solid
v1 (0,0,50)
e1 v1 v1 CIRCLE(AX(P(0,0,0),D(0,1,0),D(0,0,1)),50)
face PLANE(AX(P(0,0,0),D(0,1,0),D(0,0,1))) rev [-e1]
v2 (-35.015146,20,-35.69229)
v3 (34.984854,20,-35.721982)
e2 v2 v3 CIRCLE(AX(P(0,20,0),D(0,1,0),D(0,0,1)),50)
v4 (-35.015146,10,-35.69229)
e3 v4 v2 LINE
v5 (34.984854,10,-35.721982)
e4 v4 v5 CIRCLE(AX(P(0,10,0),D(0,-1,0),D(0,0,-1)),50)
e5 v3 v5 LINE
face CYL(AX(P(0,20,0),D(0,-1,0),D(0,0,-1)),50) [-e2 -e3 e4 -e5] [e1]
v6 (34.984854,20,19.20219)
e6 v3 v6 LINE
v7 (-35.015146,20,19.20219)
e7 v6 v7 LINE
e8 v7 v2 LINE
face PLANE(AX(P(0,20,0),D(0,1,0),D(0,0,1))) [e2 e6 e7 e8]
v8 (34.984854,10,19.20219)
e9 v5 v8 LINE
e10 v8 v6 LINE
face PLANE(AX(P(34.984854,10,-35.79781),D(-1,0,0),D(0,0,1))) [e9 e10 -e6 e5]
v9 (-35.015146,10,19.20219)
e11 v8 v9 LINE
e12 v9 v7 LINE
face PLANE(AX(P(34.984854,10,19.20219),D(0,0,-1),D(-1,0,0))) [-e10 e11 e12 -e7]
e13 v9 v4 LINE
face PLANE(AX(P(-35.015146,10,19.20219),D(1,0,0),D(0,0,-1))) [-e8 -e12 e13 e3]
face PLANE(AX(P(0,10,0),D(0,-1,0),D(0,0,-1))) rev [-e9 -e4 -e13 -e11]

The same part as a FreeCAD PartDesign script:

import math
import FreeCAD as App
import Part
import Sketcher


def add_polygon(sketch, points):
    """Adds a closed chain of lines whose ends are joined by coincident constraints."""
    first, n = sketch.GeometryCount, len(points)
    for a, b in zip(points, points[1:] + points[:1]):
        sketch.addGeometry(Part.LineSegment(App.Vector(*a, 0), App.Vector(*b, 0)), False)
    for i in range(n):
        sketch.addConstraint(Sketcher.Constraint("Coincident", first + i, 2, first + (i + 1) % n, 1))

doc = App.newDocument("Part")
body = doc.addObject("PartDesign::Body", "Body")

sketch1 = doc.addObject("Sketcher::SketchObject", "Sketch")
body.addObject(sketch1)
sketch1.AttachmentSupport = (doc.XZ_Plane, [""])
sketch1.MapMode = "FlatFace"
sketch1.addGeometry(Part.Circle(App.Vector(0, 0, 0), App.Vector(0, 0, 1), 50), False)
sketch1.addConstraint([
    Sketcher.Constraint("Coincident", 0, 3, -1, 1),
    Sketcher.Constraint("Diameter", 0, 100.0),
])
pad1 = doc.addObject("PartDesign::Pad", "Pad")
body.addObject(pad1)
pad1.Profile = sketch1
pad1.Length = 20
pad1.Reversed = True

sketch2 = doc.addObject("Sketcher::SketchObject", "Sketch001")
body.addObject(sketch2)
sketch2.AttachmentSupport = (doc.XZ_Plane, [""])
sketch2.MapMode = "FlatFace"
sketch2.AttachmentOffset = App.Placement(App.Vector(0, 0, -20), App.Rotation())
add_polygon(sketch2, [(-35, -36), (-35, 19), (35, 19), (35, -36)])
sketch2.addConstraint([
    Sketcher.Constraint("Vertical", 0),
    Sketcher.Constraint("Horizontal", 1),
    Sketcher.Constraint("Vertical", 2),
    Sketcher.Constraint("Horizontal", 3),
    Sketcher.Constraint("DistanceX", 1, 1, 1, 2, 70.0),
    Sketcher.Constraint("DistanceY", 0, 1, 0, 2, 55.0),
    Sketcher.Constraint("DistanceY", -1, 1, 0, 2, 19.20219),
    Sketcher.Constraint("DistanceX", 0, 2, -1, 1, 35.015146),
])
pocket1 = doc.addObject("PartDesign::Pocket", "Pocket")
body.addObject(pocket1)
pocket1.Profile = sketch2
pocket1.Length = 10
pocket1.Reversed = True

sketch3 = doc.addObject("Sketcher::SketchObject", "Sketch002")
body.addObject(sketch3)
sketch3.AttachmentSupport = (doc.XZ_Plane, [""])
sketch3.MapMode = "FlatFace"
sketch3.AttachmentOffset = App.Placement(App.Vector(0, 0, -10), App.Rotation())
sketch3.addGeometry([
    Part.LineSegment(App.Vector(-35, -36, 0), App.Vector(35, -36, 0)),
    Part.ArcOfCircle(Part.Circle(App.Vector(0, 0, 0), App.Vector(0, 0, 1), 50), math.radians(-134), math.radians(-46)),
], False)
sketch3.addConstraint([
    Sketcher.Constraint("Coincident", 0, 1, 1, 1),
    Sketcher.Constraint("Coincident", 1, 2, 0, 2),
    Sketcher.Constraint("Coincident", 1, 3, -1, 1),
    Sketcher.Constraint("Radius", 1, 50.0),
    Sketcher.Constraint("DistanceX", 0, 1, 1, 2, 70.0),
    Sketcher.Constraint("DistanceY", 0, 1, -1, 1, 35.69229),
])
pocket2 = doc.addObject("PartDesign::Pocket", "Pocket001")
body.addObject(pocket2)
pocket2.Profile = sketch3
pocket2.Length = 10

doc.recompute()
